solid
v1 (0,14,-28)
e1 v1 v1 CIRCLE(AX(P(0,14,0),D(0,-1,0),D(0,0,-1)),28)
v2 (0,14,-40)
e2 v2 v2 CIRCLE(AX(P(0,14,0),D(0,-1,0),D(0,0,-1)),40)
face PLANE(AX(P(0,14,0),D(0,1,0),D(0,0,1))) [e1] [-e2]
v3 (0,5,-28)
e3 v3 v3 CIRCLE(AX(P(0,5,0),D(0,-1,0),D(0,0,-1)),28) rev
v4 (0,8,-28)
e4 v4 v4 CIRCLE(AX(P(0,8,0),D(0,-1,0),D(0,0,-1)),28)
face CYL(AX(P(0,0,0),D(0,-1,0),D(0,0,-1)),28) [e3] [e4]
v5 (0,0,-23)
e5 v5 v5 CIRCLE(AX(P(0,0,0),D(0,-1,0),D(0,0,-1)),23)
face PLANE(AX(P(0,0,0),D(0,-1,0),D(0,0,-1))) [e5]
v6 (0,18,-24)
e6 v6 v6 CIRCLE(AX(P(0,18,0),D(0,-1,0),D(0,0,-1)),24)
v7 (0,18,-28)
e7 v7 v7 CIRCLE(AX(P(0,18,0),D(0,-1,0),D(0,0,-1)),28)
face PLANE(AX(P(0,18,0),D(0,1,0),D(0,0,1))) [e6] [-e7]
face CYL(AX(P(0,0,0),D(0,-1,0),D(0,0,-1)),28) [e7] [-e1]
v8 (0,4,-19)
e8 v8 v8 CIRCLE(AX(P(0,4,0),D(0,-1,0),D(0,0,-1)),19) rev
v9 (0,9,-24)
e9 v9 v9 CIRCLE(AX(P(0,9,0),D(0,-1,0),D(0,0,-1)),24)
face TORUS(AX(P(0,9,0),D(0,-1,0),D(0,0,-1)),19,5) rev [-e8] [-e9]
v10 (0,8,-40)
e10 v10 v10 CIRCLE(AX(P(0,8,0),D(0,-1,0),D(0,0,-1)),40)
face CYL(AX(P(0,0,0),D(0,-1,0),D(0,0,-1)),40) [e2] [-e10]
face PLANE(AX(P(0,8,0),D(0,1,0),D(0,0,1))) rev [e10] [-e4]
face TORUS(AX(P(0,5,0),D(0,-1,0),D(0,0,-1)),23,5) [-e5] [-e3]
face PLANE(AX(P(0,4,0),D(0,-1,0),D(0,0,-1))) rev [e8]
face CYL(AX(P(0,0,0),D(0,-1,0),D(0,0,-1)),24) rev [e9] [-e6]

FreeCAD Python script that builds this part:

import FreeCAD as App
import Part
import Sketcher

V = App.Vector


def edges_at(feature, points):
    """Names of the edges that pass closest to the given points."""
    edges = feature.Shape.Edges
    near = lambda p: min(range(len(edges)), key=lambda i: edges[i].distToShape(Part.Vertex(*p))[0])
    return sorted({f"Edge{near(p) + 1}" for p in points})


def add_polygon(sketch, points):
    """Adds a closed chain of lines whose ends are joined by coincident constraints."""
    first, n = sketch.GeometryCount, len(points)
    for a, b in zip(points, points[1:] + points[:1]):
        sketch.addGeometry(Part.LineSegment(App.Vector(*a, 0), App.Vector(*b, 0)), False)
    for i in range(n):
        sketch.addConstraint(Sketcher.Constraint("Coincident", first + i, 2, first + (i + 1) % n, 1))

doc = App.newDocument("Part")
body = doc.addObject("PartDesign::Body", "Body")

sketch1 = doc.addObject("Sketcher::SketchObject", "Sketch")
body.addObject(sketch1)
sketch1.AttachmentSupport = (doc.XY_Plane, [""])
sketch1.MapMode = "FlatFace"
add_polygon(sketch1, [(-24, 4), (-24, 18), (-28, 18), (-28, 14), (-40, 14), (-40, 8), (-28, 8), (-28, 0), (0, 0), (0, 4)])
sketch1.addConstraint(Sketcher.Constraint("Vertical", 0))
sketch1.addConstraint(Sketcher.Constraint("Horizontal", 1))
sketch1.addConstraint(Sketcher.Constraint("Vertical", 2))
sketch1.addConstraint(Sketcher.Constraint("Horizontal", 3))
sketch1.addConstraint(Sketcher.Constraint("Vertical", 4))
sketch1.addConstraint(Sketcher.Constraint("Horizontal", 5))
sketch1.addConstraint(Sketcher.Constraint("Vertical", 6))
sketch1.addConstraint(Sketcher.Constraint("Horizontal", 7))
sketch1.addConstraint(Sketcher.Constraint("Vertical", 8))
sketch1.addConstraint(Sketcher.Constraint("Horizontal", 9))
sketch1.addConstraint(Sketcher.Constraint("Coincident", 7, 2, -1, 1))
sketch1.addConstraint(Sketcher.Constraint("Vertical", 2, 2, 5, 2))
sketch1.addConstraint(Sketcher.Constraint("Equal", 1, 2))
sketch1.addConstraint(Sketcher.Constraint("Equal", 2, 8))
sketch1.addConstraint(Sketcher.Constraint("DistanceX", 1, 2, 1, 1, 4.0))
sketch1.addConstraint(Sketcher.Constraint("DistanceX", 3, 2, 3, 1, 12.0))
sketch1.addConstraint(Sketcher.Constraint("DistanceX", 7, 1, 7, 2, 28.0))
sketch1.addConstraint(Sketcher.Constraint("DistanceY", 0, 1, 0, 2, 14.0))
sketch1.addConstraint(Sketcher.Constraint("DistanceY", 4, 2, 4, 1, 6.0))
revolution = doc.addObject("PartDesign::Revolution", "Revolution")
body.addObject(revolution)
revolution.Profile = sketch1
revolution.ReferenceAxis = (sketch1, ["V_Axis"])
revolution.Angle = 360
doc.recompute()

fillet = doc.addObject("PartDesign::Fillet", "Fillet")
body.addObject(fillet)
fillet.Base = (revolution, edges_at(revolution, [(0, 0, 28), (0, 4, 24)]))
fillet.Radius = 5

doc.recompute()
